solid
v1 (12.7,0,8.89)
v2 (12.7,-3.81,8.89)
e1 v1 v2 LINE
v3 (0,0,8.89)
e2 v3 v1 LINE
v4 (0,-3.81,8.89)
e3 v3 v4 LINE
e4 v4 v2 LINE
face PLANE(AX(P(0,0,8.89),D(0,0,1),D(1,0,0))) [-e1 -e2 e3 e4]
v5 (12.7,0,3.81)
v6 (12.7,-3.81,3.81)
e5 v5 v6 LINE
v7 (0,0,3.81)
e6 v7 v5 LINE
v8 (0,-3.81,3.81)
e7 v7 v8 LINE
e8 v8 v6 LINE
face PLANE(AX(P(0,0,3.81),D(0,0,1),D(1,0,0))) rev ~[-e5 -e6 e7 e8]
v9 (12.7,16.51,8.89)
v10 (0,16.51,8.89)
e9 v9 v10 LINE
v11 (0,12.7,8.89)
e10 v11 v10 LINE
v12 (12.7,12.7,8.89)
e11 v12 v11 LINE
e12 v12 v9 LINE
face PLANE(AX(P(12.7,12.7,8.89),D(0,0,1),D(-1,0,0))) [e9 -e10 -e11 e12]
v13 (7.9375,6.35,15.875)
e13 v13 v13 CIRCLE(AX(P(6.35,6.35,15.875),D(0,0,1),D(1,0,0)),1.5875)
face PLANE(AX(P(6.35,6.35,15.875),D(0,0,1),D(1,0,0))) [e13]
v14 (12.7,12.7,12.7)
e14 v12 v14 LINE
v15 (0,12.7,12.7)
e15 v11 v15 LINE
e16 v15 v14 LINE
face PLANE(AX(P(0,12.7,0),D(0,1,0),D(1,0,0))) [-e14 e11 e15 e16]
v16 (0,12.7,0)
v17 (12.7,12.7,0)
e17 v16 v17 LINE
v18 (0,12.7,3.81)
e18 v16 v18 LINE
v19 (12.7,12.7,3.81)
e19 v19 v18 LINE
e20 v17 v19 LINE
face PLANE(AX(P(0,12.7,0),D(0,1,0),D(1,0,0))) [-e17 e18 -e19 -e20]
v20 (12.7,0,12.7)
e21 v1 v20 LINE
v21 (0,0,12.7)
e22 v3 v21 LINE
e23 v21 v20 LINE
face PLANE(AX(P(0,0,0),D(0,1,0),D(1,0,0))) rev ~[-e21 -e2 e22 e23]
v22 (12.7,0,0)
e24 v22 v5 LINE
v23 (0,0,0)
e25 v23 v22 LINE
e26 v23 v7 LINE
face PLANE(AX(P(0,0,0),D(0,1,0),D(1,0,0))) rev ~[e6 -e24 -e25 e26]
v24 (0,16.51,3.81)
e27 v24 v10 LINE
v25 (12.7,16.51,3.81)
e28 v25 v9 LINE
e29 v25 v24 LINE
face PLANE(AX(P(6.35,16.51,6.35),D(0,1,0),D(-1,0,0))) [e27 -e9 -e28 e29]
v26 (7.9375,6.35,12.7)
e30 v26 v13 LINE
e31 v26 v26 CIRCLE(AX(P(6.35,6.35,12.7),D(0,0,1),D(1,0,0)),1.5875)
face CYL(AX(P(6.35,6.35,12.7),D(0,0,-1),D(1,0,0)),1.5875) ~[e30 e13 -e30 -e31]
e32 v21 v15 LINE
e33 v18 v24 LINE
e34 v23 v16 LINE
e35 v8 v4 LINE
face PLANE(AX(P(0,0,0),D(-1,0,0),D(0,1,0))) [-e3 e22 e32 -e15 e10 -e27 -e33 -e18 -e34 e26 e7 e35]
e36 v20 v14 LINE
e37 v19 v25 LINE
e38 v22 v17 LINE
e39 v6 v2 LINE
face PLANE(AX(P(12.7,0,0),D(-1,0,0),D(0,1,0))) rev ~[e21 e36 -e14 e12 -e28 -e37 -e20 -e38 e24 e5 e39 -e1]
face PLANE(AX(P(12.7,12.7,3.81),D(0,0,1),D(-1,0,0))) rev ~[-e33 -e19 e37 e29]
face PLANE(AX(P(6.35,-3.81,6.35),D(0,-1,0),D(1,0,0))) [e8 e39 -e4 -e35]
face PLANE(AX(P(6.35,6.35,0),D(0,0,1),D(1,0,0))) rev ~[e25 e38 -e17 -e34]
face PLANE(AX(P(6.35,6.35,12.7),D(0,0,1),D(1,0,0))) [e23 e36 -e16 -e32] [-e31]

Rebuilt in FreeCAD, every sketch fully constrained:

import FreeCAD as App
import Part
import Sketcher
from FreeCAD import Vector
Q = App.Units.Quantity

doc = App.newDocument("Part")
body = doc.addObject("PartDesign::Body", "Body")

# Sketch on XY plane
sketch1 = body.newObject("Sketcher::SketchObject", "Sketch")
sketch1.AttachmentSupport = (doc.getObject("XY_Plane"), [""])
sketch1.MapMode = "FlatFace"
sketch1.addGeometry([
    Part.LineSegment(Vector(0, 12.7, 0), Vector(0, 0, 0)),
    Part.LineSegment(Vector(0, 0, 0), Vector(12.7, 0, 0)),
    Part.LineSegment(Vector(12.7, 0, 0), Vector(12.7, 12.7, 0)),
    Part.LineSegment(Vector(12.7, 12.7, 0), Vector(0, 12.7, 0)),
], False)
sketch1.addConstraint([
    Sketcher.Constraint("Coincident", 0, 2, 1, 1),
    Sketcher.Constraint("Coincident", 1, 2, 2, 1),
    Sketcher.Constraint("Coincident", 2, 2, 3, 1),
    Sketcher.Constraint("Coincident", 3, 2, 0, 1),
    Sketcher.Constraint("Vertical", 0),
    Sketcher.Constraint("Horizontal", 1),
    Sketcher.Constraint("Vertical", 2),
    Sketcher.Constraint("Horizontal", 3),
    Sketcher.Constraint("Coincident", 0, 2, -1, 1),
    Sketcher.Constraint("Equal", 3, 0),
    Sketcher.Constraint("DistanceX", 1, 1, 1, 2, Q("0.5 in")),
])
pad1 = body.newObject("PartDesign::Pad", "Pad")
pad1.Profile = sketch1
pad1.Length = Q("0.5 in")

# Sketch on XY plane
sketch2 = body.newObject("Sketcher::SketchObject", "Sketch001")
sketch2.AttachmentSupport = (doc.getObject("XY_Plane"), [""])
sketch2.MapMode = "FlatFace"
sketch2.AttachmentOffset = App.Placement(Vector(0, 0, 0.5 * 25.4), App.Rotation())
sketch2.addGeometry(Part.Circle(Vector(6.35, 6.35, 0), Vector(0, 0, 1), 1.5875), False)
sketch2.addConstraint([
    Sketcher.Constraint("Diameter", 0, Q("0.125 in")),
    Sketcher.Constraint("DistanceX", -1, 1, 0, 3, Q("0.25 in")),
    Sketcher.Constraint("DistanceY", -1, 1, 0, 3, Q("0.25 in")),
])
pad2 = body.newObject("PartDesign::Pad", "Pad001")
pad2.Profile = sketch2
pad2.Length = Q("0.125 in")

# Sketch on XZ plane
sketch3 = body.newObject("Sketcher::SketchObject", "Sketch002")
sketch3.AttachmentSupport = (doc.getObject("XZ_Plane"), [""])
sketch3.MapMode = "FlatFace"
sketch3.addGeometry([
    Part.LineSegment(Vector(0, 8.89, 0), Vector(0, 3.81, 0)),
    Part.LineSegment(Vector(0, 3.81, 0), Vector(12.7, 3.81, 0)),
    Part.LineSegment(Vector(12.7, 3.81, 0), Vector(12.7, 8.89, 0)),
    Part.LineSegment(Vector(12.7, 8.89, 0), Vector(0, 8.89, 0)),
], False)
sketch3.addConstraint([
    Sketcher.Constraint("Coincident", 0, 2, 1, 1),
    Sketcher.Constraint("Coincident", 1, 2, 2, 1),
    Sketcher.Constraint("Coincident", 2, 2, 3, 1),
    Sketcher.Constraint("Coincident", 3, 2, 0, 1),
    Sketcher.Constraint("Vertical", 0),
    Sketcher.Constraint("Horizontal", 1),
    Sketcher.Constraint("Vertical", 2),
    Sketcher.Constraint("Horizontal", 3),
    Sketcher.Constraint("PointOnObject", 0, 2, -2),
    Sketcher.Constraint("DistanceX", 1, 1, 1, 2, Q("0.5 in")),
    Sketcher.Constraint("DistanceY", 0, 2, 0, 1, Q("0.2 in")),
    Sketcher.Constraint("DistanceY", -1, 1, 0, 2, Q("0.15 in")),
])
pad3 = body.newObject("PartDesign::Pad", "Pad002")
pad3.Profile = sketch3
pad3.Length = Q("0.15 in")

# Sketch on XZ plane
sketch4 = body.newObject("Sketcher::SketchObject", "Sketch003")
sketch4.AttachmentSupport = (doc.getObject("XZ_Plane"), [""])
sketch4.MapMode = "FlatFace"
sketch4.AttachmentOffset = App.Placement(Vector(0, 0, -0.5 * 25.4), App.Rotation())
sketch4.addGeometry([
    Part.LineSegment(Vector(12.7, 8.89, 0), Vector(12.7, 3.81, 0)),
    Part.LineSegment(Vector(12.7, 3.81, 0), Vector(0, 3.81, 0)),
    Part.LineSegment(Vector(0, 3.81, 0), Vector(0, 8.89, 0)),
    Part.LineSegment(Vector(0, 8.89, 0), Vector(12.7, 8.89, 0)),
], False)
sketch4.addConstraint([
    Sketcher.Constraint("Coincident", 0, 2, 1, 1),
    Sketcher.Constraint("Coincident", 1, 2, 2, 1),
    Sketcher.Constraint("Coincident", 2, 2, 3, 1),
    Sketcher.Constraint("Coincident", 3, 2, 0, 1),
    Sketcher.Constraint("Vertical", 0),
    Sketcher.Constraint("Horizontal", 1),
    Sketcher.Constraint("Vertical", 2),
    Sketcher.Constraint("Horizontal", 3),
    Sketcher.Constraint("PointOnObject", 1, 2, -2),
    Sketcher.Constraint("DistanceX", 1, 2, 1, 1, Q("0.5 in")),
    Sketcher.Constraint("DistanceY", 0, 2, 0, 1, Q("0.2 in")),
    Sketcher.Constraint("DistanceY", -1, 1, 0, 2, Q("0.15 in")),
])
pad4 = body.newObject("PartDesign::Pad", "Pad003")
pad4.Profile = sketch4
pad4.Length = Q("0.15 in")
pad4.Reversed = True

doc.recompute()
